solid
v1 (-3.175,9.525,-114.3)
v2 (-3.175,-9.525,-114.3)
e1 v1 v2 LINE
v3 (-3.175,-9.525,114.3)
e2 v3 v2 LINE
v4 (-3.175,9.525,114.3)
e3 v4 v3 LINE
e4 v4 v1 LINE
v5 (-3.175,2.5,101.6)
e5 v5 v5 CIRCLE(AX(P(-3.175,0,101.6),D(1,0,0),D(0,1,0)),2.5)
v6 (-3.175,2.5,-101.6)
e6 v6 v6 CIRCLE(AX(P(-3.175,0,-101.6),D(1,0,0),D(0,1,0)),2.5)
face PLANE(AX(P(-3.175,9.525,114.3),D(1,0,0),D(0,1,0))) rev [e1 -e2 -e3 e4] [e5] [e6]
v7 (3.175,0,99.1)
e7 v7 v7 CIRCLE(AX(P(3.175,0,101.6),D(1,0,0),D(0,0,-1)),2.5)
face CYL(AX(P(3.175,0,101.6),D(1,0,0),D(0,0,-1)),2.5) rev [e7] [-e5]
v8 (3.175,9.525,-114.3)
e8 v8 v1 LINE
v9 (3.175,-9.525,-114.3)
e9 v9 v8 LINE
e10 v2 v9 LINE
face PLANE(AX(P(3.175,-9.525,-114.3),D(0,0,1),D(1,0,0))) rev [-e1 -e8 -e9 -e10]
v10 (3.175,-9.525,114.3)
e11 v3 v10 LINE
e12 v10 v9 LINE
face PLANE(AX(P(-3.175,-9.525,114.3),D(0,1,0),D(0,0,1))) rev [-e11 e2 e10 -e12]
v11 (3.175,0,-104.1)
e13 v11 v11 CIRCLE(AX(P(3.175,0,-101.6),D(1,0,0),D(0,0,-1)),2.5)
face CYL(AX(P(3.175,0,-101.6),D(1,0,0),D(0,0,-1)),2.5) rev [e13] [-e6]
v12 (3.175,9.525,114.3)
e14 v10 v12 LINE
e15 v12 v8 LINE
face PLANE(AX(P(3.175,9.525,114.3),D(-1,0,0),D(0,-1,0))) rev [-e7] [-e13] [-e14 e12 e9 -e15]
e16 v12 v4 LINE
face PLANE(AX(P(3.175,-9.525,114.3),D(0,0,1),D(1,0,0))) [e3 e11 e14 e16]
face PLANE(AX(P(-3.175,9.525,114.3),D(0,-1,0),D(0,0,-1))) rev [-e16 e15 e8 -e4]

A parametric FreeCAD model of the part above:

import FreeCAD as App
import Part
import Sketcher

V = App.Vector
Q = App.Units.Quantity

doc = App.newDocument("Part")
body = doc.addObject("PartDesign::Body", "Body")

# Sketch on XY plane
sketch1 = body.newObject("Sketcher::SketchObject", "Sketch")
sketch1.AttachmentSupport = (doc.getObject("XY_Plane"), [""])
sketch1.MapMode = "FlatFace"
sketch1.addGeometry([
    Part.LineSegment(V(-3, 10, 0), V(-3, -10, 0)),
    Part.LineSegment(V(-3, -10, 0), V(3, -10, 0)),
    Part.LineSegment(V(3, -10, 0), V(3, 10, 0)),
    Part.LineSegment(V(3, 10, 0), V(-3, 10, 0)),
], False)
sketch1.addConstraint([
    Sketcher.Constraint("Coincident", 0, 2, 1, 1),
    Sketcher.Constraint("Coincident", 1, 2, 2, 1),
    Sketcher.Constraint("Coincident", 2, 2, 3, 1),
    Sketcher.Constraint("Coincident", 3, 2, 0, 1),
    Sketcher.Constraint("Vertical", 0),
    Sketcher.Constraint("Horizontal", 1),
    Sketcher.Constraint("Vertical", 2),
    Sketcher.Constraint("Horizontal", 3),
    Sketcher.Constraint("Symmetric", 0, 2, 2, 2, -1, 1),
    Sketcher.Constraint("DistanceX", 1, 1, 1, 2, Q("0.25 in")),
    Sketcher.Constraint("DistanceY", 0, 2, 0, 1, Q("0.75 in")),
])
pad1 = body.newObject("PartDesign::Pad", "Pad")
pad1.Profile = sketch1
pad1.Length = Q("9 in")
pad1.Midplane = True

# Sketch on YZ plane
sketch2 = body.newObject("Sketcher::SketchObject", "Sketch001")
sketch2.AttachmentSupport = (doc.getObject("YZ_Plane"), [""])
sketch2.MapMode = "FlatFace"
sketch2.AttachmentOffset = App.Placement(V(0, 0, 0.125 * 25.4), App.Rotation())
sketch2.addGeometry([
    Part.Circle(V(0, 101.6, 0), V(0, 0, 1), 2.5),
    Part.Circle(V(0, -101.6, 0), V(0, 0, 1), 2.5),
], False)
sketch2.addConstraint([
    Sketcher.Constraint("Equal", 0, 1),
    Sketcher.Constraint("Symmetric", 0, 3, 1, 3, -1, 1),
    Sketcher.Constraint("PointOnObject", 0, 3, -2),
    Sketcher.Constraint("DistanceY", -1, 1, 0, 3, Q("4 in")),
    Sketcher.Constraint("Diameter", 0, 5.0),
])
doc.recompute()
hole = body.newObject("PartDesign::Hole", "Hole")
hole.Profile = sketch2
hole.ThreadType = "None"
hole.Diameter = 5
hole.DepthType = "Dimension"
hole.Depth = Q("0.25 in")
hole.DrillPoint = "Flat"

doc.recompute()
